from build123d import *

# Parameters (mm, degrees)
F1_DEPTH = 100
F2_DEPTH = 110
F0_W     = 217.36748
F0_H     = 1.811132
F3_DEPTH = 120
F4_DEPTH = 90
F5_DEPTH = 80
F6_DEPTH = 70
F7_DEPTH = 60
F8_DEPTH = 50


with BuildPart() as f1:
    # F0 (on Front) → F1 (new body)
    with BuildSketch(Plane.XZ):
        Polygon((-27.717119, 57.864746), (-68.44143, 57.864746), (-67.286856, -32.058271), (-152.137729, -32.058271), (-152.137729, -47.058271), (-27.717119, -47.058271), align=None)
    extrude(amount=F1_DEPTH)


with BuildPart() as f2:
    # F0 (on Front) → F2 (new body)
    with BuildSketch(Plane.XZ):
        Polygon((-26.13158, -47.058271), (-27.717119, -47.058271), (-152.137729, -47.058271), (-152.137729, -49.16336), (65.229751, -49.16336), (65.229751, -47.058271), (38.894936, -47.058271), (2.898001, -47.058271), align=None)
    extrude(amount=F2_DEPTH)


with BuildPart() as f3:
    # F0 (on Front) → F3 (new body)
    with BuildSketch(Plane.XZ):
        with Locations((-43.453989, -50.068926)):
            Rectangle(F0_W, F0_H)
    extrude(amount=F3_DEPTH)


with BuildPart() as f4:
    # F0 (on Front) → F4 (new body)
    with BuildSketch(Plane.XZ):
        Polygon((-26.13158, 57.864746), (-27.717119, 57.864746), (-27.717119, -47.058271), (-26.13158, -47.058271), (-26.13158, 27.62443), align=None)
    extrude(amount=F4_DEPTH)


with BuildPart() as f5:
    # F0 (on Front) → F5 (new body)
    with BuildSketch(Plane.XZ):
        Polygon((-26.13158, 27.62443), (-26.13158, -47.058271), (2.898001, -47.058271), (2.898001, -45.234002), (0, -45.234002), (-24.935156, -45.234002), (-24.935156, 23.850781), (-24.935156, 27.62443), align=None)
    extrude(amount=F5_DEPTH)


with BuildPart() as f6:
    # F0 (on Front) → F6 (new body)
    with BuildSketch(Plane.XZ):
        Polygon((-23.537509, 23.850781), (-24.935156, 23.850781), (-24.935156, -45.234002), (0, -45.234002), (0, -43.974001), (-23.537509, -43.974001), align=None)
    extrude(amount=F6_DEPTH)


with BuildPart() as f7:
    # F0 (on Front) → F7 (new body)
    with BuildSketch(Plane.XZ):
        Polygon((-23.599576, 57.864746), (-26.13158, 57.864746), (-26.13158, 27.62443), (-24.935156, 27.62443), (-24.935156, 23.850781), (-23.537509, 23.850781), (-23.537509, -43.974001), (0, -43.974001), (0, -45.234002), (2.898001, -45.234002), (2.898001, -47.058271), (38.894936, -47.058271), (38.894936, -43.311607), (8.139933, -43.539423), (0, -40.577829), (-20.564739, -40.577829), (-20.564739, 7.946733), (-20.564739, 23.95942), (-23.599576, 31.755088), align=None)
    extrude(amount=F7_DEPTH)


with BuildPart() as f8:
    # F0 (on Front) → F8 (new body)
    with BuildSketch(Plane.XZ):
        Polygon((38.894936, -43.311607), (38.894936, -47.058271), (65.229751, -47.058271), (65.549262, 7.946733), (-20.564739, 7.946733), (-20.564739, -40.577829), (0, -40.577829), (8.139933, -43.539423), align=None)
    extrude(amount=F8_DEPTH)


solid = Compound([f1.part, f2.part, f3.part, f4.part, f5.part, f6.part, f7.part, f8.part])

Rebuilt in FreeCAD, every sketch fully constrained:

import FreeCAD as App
import Part
import Sketcher
from FreeCAD import Vector
Q = App.Units.Quantity

doc = App.newDocument("Part")
body = doc.addObject("PartDesign::Body", "Body")

sketch1 = doc.addObject("Sketcher::SketchObject", "Sketch")
body.addObject(sketch1)
sketch1.AttachmentSupport = (doc.XZ_Plane, [""])
sketch1.MapMode = "FlatFace"
sketch1.addGeometry([
    Part.LineSegment(Vector(-28, 58, 0), Vector(-68, 58, 0)),
    Part.LineSegment(Vector(-68, 58, 0), Vector(-67, -32, 0)),
    Part.LineSegment(Vector(-67, -32, 0), Vector(-152, -32, 0)),
    Part.LineSegment(Vector(-152, -32, 0), Vector(-152, -47, 0)),
    Part.LineSegment(Vector(-152, -47, 0), Vector(-28, -47, 0)),
    Part.LineSegment(Vector(-28, -47, 0), Vector(-28, 58, 0)),
], False)
sketch1.addConstraint([
    Sketcher.Constraint("Coincident", 0, 2, 1, 1),
    Sketcher.Constraint("Coincident", 1, 2, 2, 1),
    Sketcher.Constraint("Coincident", 2, 2, 3, 1),
    Sketcher.Constraint("Coincident", 3, 2, 4, 1),
    Sketcher.Constraint("Coincident", 4, 2, 5, 1),
    Sketcher.Constraint("Coincident", 5, 2, 0, 1),
    Sketcher.Constraint("Horizontal", 0),
    Sketcher.Constraint("Horizontal", 2),
    Sketcher.Constraint("Vertical", 3),
    Sketcher.Constraint("Horizontal", 4),
    Sketcher.Constraint("Vertical", 5),
    Sketcher.Constraint("DistanceY", 3, 2, 3, 1, Q("15 mm")),
    Sketcher.Constraint("DistanceX", 0, 2, 0, 1, Q("40.724311 mm")),
    Sketcher.Constraint("DistanceX", 4, 1, 4, 2, Q("124.42061 mm")),
    Sketcher.Constraint("Distance", 1, Q("89.930429 mm")),
    Sketcher.Constraint("DistanceX", 2, 2, 2, 1, Q("84.850873 mm")),
    Sketcher.Constraint("DistanceX", 0, 2, -1, 1, Q("68.44143 mm")),
    Sketcher.Constraint("DistanceY", 1, 2, -1, 1, Q("32.058271 mm")),
])
pad1 = doc.addObject("PartDesign::Pad", "Pad")
body.addObject(pad1)
pad1.Profile = sketch1
pad1.Length = 100
body2 = doc.addObject("PartDesign::Body", "Body001")

sketch2 = doc.addObject("Sketcher::SketchObject", "Sketch001")
body2.addObject(sketch2)
sketch2.AttachmentSupport = (doc.getObject("XZ_Plane001"), [""])
sketch2.MapMode = "FlatFace"
sketch2.addGeometry([
    Part.LineSegment(Vector(-152.1, -47.1, 0), Vector(-152.1, -49.2, 0)),
    Part.LineSegment(Vector(-152.1, -49.2, 0), Vector(65.2, -49.2, 0)),
    Part.LineSegment(Vector(65.2, -49.2, 0), Vector(65.2, -47.1, 0)),
    Part.LineSegment(Vector(65.2, -47.1, 0), Vector(-152.1, -47.1, 0)),
], False)
sketch2.addConstraint([
    Sketcher.Constraint("Coincident", 0, 2, 1, 1),
    Sketcher.Constraint("Coincident", 1, 2, 2, 1),
    Sketcher.Constraint("Coincident", 2, 2, 3, 1),
    Sketcher.Constraint("Coincident", 3, 2, 0, 1),
    Sketcher.Constraint("Vertical", 0),
    Sketcher.Constraint("Horizontal", 1),
    Sketcher.Constraint("Vertical", 2),
    Sketcher.Constraint("Horizontal", 3),
    Sketcher.Constraint("DistanceX", 1, 1, 1, 2, Q("217.36748 mm")),
    Sketcher.Constraint("DistanceY", 0, 2, 0, 1, Q("2.105089 mm")),
    Sketcher.Constraint("DistanceX", 0, 2, -1, 1, Q("152.137729 mm")),
    Sketcher.Constraint("DistanceY", 0, 2, -1, 1, Q("49.16336 mm")),
])
pad2 = doc.addObject("PartDesign::Pad", "Pad001")
body2.addObject(pad2)
pad2.Profile = sketch2
pad2.Length = 110
body3 = doc.addObject("PartDesign::Body", "Body002")

sketch3 = doc.addObject("Sketcher::SketchObject", "Sketch002")
body3.addObject(sketch3)
sketch3.AttachmentSupport = (doc.getObject("XZ_Plane002"), [""])
sketch3.MapMode = "FlatFace"
sketch3.addGeometry([
    Part.LineSegment(Vector(-152.1, -49.2, 0), Vector(-152.1, -51, 0)),
    Part.LineSegment(Vector(-152.1, -51, 0), Vector(65.2, -51, 0)),
    Part.LineSegment(Vector(65.2, -51, 0), Vector(65.2, -49.2, 0)),
    Part.LineSegment(Vector(65.2, -49.2, 0), Vector(-152.1, -49.2, 0)),
], False)
sketch3.addConstraint([
    Sketcher.Constraint("Coincident", 0, 2, 1, 1),
    Sketcher.Constraint("Coincident", 1, 2, 2, 1),
    Sketcher.Constraint("Coincident", 2, 2, 3, 1),
    Sketcher.Constraint("Coincident", 3, 2, 0, 1),
    Sketcher.Constraint("Vertical", 0),
    Sketcher.Constraint("Horizontal", 1),
    Sketcher.Constraint("Vertical", 2),
    Sketcher.Constraint("Horizontal", 3),
    Sketcher.Constraint("DistanceX", 1, 1, 1, 2, Q("217.36748 mm")),
    Sketcher.Constraint("DistanceY", 0, 2, 0, 1, Q("1.811132 mm")),
    Sketcher.Constraint("DistanceX", 0, 2, -1, 1, Q("152.137729 mm")),
    Sketcher.Constraint("DistanceY", 0, 2, -1, 1, Q("50.974492 mm")),
])
pad3 = doc.addObject("PartDesign::Pad", "Pad002")
body3.addObject(pad3)
pad3.Profile = sketch3
pad3.Length = 120
body4 = doc.addObject("PartDesign::Body", "Body003")

sketch4 = doc.addObject("Sketcher::SketchObject", "Sketch003")
body4.addObject(sketch4)
sketch4.AttachmentSupport = (doc.getObject("XZ_Plane003"), [""])
sketch4.MapMode = "FlatFace"
sketch4.addGeometry([
    Part.LineSegment(Vector(-26.1, 57.9, 0), Vector(-27.7, 57.9, 0)),
    Part.LineSegment(Vector(-27.7, 57.9, 0), Vector(-27.7, -47.1, 0)),
    Part.LineSegment(Vector(-27.7, -47.1, 0), Vector(-26.1, -47.1, 0)),
    Part.LineSegment(Vector(-26.1, -47.1, 0), Vector(-26.1, 57.9, 0)),
], False)
sketch4.addConstraint([
    Sketcher.Constraint("Coincident", 0, 2, 1, 1),
    Sketcher.Constraint("Coincident", 1, 2, 2, 1),
    Sketcher.Constraint("Coincident", 2, 2, 3, 1),
    Sketcher.Constraint("Coincident", 3, 2, 0, 1),
    Sketcher.Constraint("Horizontal", 0),
    Sketcher.Constraint("Vertical", 1),
    Sketcher.Constraint("Horizontal", 2),
    Sketcher.Constraint("Vertical", 3),
    Sketcher.Constraint("DistanceX", 0, 2, 0, 1, Q("1.585539 mm")),
    Sketcher.Constraint("DistanceY", 1, 2, 1, 1, Q("104.923017 mm")),
    Sketcher.Constraint("DistanceX", 0, 2, -1, 1, Q("27.717119 mm")),
    Sketcher.Constraint("DistanceY", 1, 2, -1, 1, Q("47.058271 mm")),
])
pad4 = doc.addObject("PartDesign::Pad", "Pad003")
body4.addObject(pad4)
pad4.Profile = sketch4
pad4.Length = 90
body5 = doc.addObject("PartDesign::Body", "Body004")

sketch5 = doc.addObject("Sketcher::SketchObject", "Sketch004")
body5.addObject(sketch5)
sketch5.AttachmentSupport = (doc.getObject("XZ_Plane004"), [""])
sketch5.MapMode = "FlatFace"
sketch5.addGeometry([
    Part.LineSegment(Vector(-26.1, 27.6, 0), Vector(-26.1, -47.1, 0)),
    Part.LineSegment(Vector(-26.1, -47.1, 0), Vector(2.9, -47.1, 0)),
    Part.LineSegment(Vector(2.9, -47.1, 0), Vector(2.9, -45.2, 0)),
    Part.LineSegment(Vector(2.9, -45.2, 0), Vector(-24.9, -45.2, 0)),
    Part.LineSegment(Vector(-24.9, -45.2, 0), Vector(-24.9, 27.6, 0)),
    Part.LineSegment(Vector(-24.9, 27.6, 0), Vector(-26.1, 27.6, 0)),
], False)
sketch5.addConstraint([
    Sketcher.Constraint("Coincident", 0, 2, 1, 1),
    Sketcher.Constraint("Coincident", 1, 2, 2, 1),
    Sketcher.Constraint("Coincident", 2, 2, 3, 1),
    Sketcher.Constraint("Coincident", 3, 2, 4, 1),
    Sketcher.Constraint("Coincident", 4, 2, 5, 1),
    Sketcher.Constraint("Coincident", 5, 2, 0, 1),
    Sketcher.Constraint("Vertical", 0),
    Sketcher.Constraint("Horizontal", 1),
    Sketcher.Constraint("Vertical", 2),
    Sketcher.Constraint("Horizontal", 3),
    Sketcher.Constraint("Vertical", 4),
    Sketcher.Constraint("Horizontal", 5),
    Sketcher.Constraint("DistanceY", 0, 2, 0, 1, Q("74.682701 mm")),
    Sketcher.Constraint("DistanceX", -1, 1, 1, 2, Q("2.898001 mm")),
    Sketcher.Constraint("DistanceY", 2, 2, -1, 1, Q("45.234002 mm")),
    Sketcher.Constraint("DistanceX", 1, 1, 1, 2, Q("29.029581 mm")),
    Sketcher.Constraint("DistanceY", 2, 1, 2, 2, Q("1.824269 mm")),
    Sketcher.Constraint("DistanceX", 3, 2, 3, 1, Q("27.833157 mm")),
])
pad5 = doc.addObject("PartDesign::Pad", "Pad004")
body5.addObject(pad5)
pad5.Profile = sketch5
pad5.Length = 80
body6 = doc.addObject("PartDesign::Body", "Body005")

sketch6 = doc.addObject("Sketcher::SketchObject", "Sketch005")
body6.addObject(sketch6)
sketch6.AttachmentSupport = (doc.getObject("XZ_Plane005"), [""])
sketch6.MapMode = "FlatFace"
sketch6.addGeometry([
    Part.LineSegment(Vector(-23.5, 23.9, 0), Vector(-24.9, 23.9, 0)),
    Part.LineSegment(Vector(-24.9, 23.9, 0), Vector(-24.9, -45.2, 0)),
    Part.LineSegment(Vector(-24.9, -45.2, 0), Vector(0, -45.2, 0)),
    Part.LineSegment(Vector(0, -45.2, 0), Vector(0, -44, 0)),
    Part.LineSegment(Vector(0, -44, 0), Vector(-23.5, -44, 0)),
    Part.LineSegment(Vector(-23.5, -44, 0), Vector(-23.5, 23.9, 0)),
], False)
sketch6.addConstraint([
    Sketcher.Constraint("Coincident", 0, 2, 1, 1),
    Sketcher.Constraint("Coincident", 1, 2, 2, 1),
    Sketcher.Constraint("Coincident", 2, 2, 3, 1),
    Sketcher.Constraint("Coincident", 3, 2, 4, 1),
    Sketcher.Constraint("Coincident", 4, 2, 5, 1),
    Sketcher.Constraint("Coincident", 5, 2, 0, 1),
    Sketcher.Constraint("Horizontal", 0),
    Sketcher.Constraint("Vertical", 1),
    Sketcher.Constraint("Horizontal", 2),
    Sketcher.Constraint("Vertical", 3),
    Sketcher.Constraint("Horizontal", 4),
    Sketcher.Constraint("Vertical", 5),
    Sketcher.Constraint("PointOnObject", 2, 2, -2),
    Sketcher.Constraint("DistanceY", 3, 1, 3, 2, Q("1.260001 mm")),
    Sketcher.Constraint("DistanceY", 1, 2, -1, 1, Q("45.234002 mm")),
    Sketcher.Constraint("DistanceX", 4, 2, 4, 1, Q("23.537509 mm")),
    Sketcher.Constraint("DistanceY", 5, 1, 5, 2, Q("67.824782 mm")),
    Sketcher.Constraint("DistanceX", 0, 2, 0, 1, Q("1.397647 mm")),
])
pad6 = doc.addObject("PartDesign::Pad", "Pad005")
body6.addObject(pad6)
pad6.Profile = sketch6
pad6.Length = 70
body7 = doc.addObject("PartDesign::Body", "Body006")

sketch7 = doc.addObject("Sketcher::SketchObject", "Sketch006")
body7.addObject(sketch7)
sketch7.AttachmentSupport = (doc.getObject("XZ_Plane006"), [""])
sketch7.MapMode = "FlatFace"
sketch7.addGeometry([
    Part.LineSegment(Vector(-23.6, 57.9, 0), Vector(-26.1, 57.9, 0)),
    Part.LineSegment(Vector(-26.1, 57.9, 0), Vector(-26.1, 27.6, 0)),
    Part.LineSegment(Vector(-26.1, 27.6, 0), Vector(-24.9, 27.6, 0)),
    Part.LineSegment(Vector(-24.9, 27.6, 0), Vector(-24.9, 23.9, 0)),
    Part.LineSegment(Vector(-24.9, 23.9, 0), Vector(-23.5, 23.9, 0)),
    Part.LineSegment(Vector(-23.5, 23.9, 0), Vector(-23.5, -44, 0)),
    Part.LineSegment(Vector(-23.5, -44, 0), Vector(0, -44, 0)),
    Part.LineSegment(Vector(0, -44, 0), Vector(0, -45.2, 0)),
    Part.LineSegment(Vector(0, -45.2, 0), Vector(2.9, -45.2, 0)),
    Part.LineSegment(Vector(2.9, -45.2, 0), Vector(2.9, -47.1, 0)),
    Part.LineSegment(Vector(2.9, -47.1, 0), Vector(38.9, -47.1, 0)),
    Part.LineSegment(Vector(38.9, -47.1, 0), Vector(38.9, -43.3, 0)),
    Part.LineSegment(Vector(38.9, -43.3, 0), Vector(8.1, -43.5, 0)),
    Part.LineSegment(Vector(8.1, -43.5, 0), Vector(0, -40.6, 0)),
    Part.LineSegment(Vector(0, -40.6, 0), Vector(-20.6, -40.6, 0)),
    Part.LineSegment(Vector(-20.6, -40.6, 0), Vector(-20.6, 24, 0)),
    Part.LineSegment(Vector(-20.6, 24, 0), Vector(-23.6, 31.8, 0)),
    Part.LineSegment(Vector(-23.6, 31.8, 0), Vector(-23.6, 57.9, 0)),
], False)
sketch7.addConstraint([
    Sketcher.Constraint("Coincident", 0, 2, 1, 1),
    Sketcher.Constraint("Coincident", 1, 2, 2, 1),
    Sketcher.Constraint("Coincident", 2, 2, 3, 1),
    Sketcher.Constraint("Coincident", 3, 2, 4, 1),
    Sketcher.Constraint("Coincident", 4, 2, 5, 1),
    Sketcher.Constraint("Coincident", 5, 2, 6, 1),
    Sketcher.Constraint("Coincident", 6, 2, 7, 1),
    Sketcher.Constraint("Coincident", 7, 2, 8, 1),
    Sketcher.Constraint("Coincident", 8, 2, 9, 1),
    Sketcher.Constraint("Coincident", 9, 2, 10, 1),
    Sketcher.Constraint("Coincident", 10, 2, 11, 1),
    Sketcher.Constraint("Coincident", 11, 2, 12, 1),
    Sketcher.Constraint("Coincident", 12, 2, 13, 1),
    Sketcher.Constraint("Coincident", 13, 2, 14, 1),
    Sketcher.Constraint("Coincident", 14, 2, 15, 1),
    Sketcher.Constraint("Coincident", 15, 2, 16, 1),
    Sketcher.Constraint("Coincident", 16, 2, 17, 1),
    Sketcher.Constraint("Coincident", 17, 2, 0, 1),
    Sketcher.Constraint("Horizontal", 0),
    Sketcher.Constraint("Vertical", 1),
    Sketcher.Constraint("Horizontal", 2),
    Sketcher.Constraint("Vertical", 3),
    Sketcher.Constraint("Horizontal", 4),
    Sketcher.Constraint("Vertical", 5),
    Sketcher.Constraint("Horizontal", 6),
    Sketcher.Constraint("Vertical", 7),
    Sketcher.Constraint("Horizontal", 8),
    Sketcher.Constraint("Vertical", 9),
    Sketcher.Constraint("Horizontal", 10),
    Sketcher.Constraint("Vertical", 11),
    Sketcher.Constraint("Horizontal", 14),
    Sketcher.Constraint("Vertical", 15),
    Sketcher.Constraint("Vertical", 17),
    Sketcher.Constraint("PointOnObject", 6, 2, -2),
    Sketcher.Constraint("PointOnObject", 13, 2, -2),
    Sketcher.Constraint("DistanceY", 7, 2, 7, 1, Q("1.260001 mm")),
    Sketcher.Constraint("DistanceX", 8, 1, 8, 2, Q("2.898001 mm")),
    Sketcher.Constraint("DistanceY", 5, 2, -1, 1, Q("43.974001 mm")),
    Sketcher.Constraint("DistanceX", 6, 1, 6, 2, Q("23.537509 mm")),
    Sketcher.Constraint("DistanceX", 14, 2, 14, 1, Q("20.564739 mm")),
    Sketcher.Constraint("DistanceY", 3, 2, 3, 1, Q("3.773649 mm")),
    Sketcher.Constraint("DistanceY", 5, 2, 5, 1, Q("67.824782 mm")),
    Sketcher.Constraint("DistanceY", 9, 2, 9, 1, Q("1.824269 mm")),
    Sketcher.Constraint("DistanceY", 15, 1, 15, 2, Q("64.537249 mm")),
    Sketcher.Constraint("Distance", 13, Q("8.66196 mm")),
    Sketcher.Constraint("DistanceX", 0, 2, 0, 1, Q("2.532004 mm")),
    Sketcher.Constraint("DistanceX", 2, 1, 2, 2, Q("1.196424 mm")),
    Sketcher.Constraint("DistanceX", 4, 1, 4, 2, Q("1.397647 mm")),
    Sketcher.Constraint("DistanceX", 10, 1, 10, 2, Q("35.996935 mm")),
    Sketcher.Constraint("DistanceY", 1, 2, 1, 1, Q("30.240316 mm")),
    Sketcher.Constraint("DistanceY", 11, 1, 11, 2, Q("3.746664 mm")),
    Sketcher.Constraint("DistanceY", 17, 1, 17, 2, Q("26.109658 mm")),
    Sketcher.Constraint("DistanceY", 13, 2, -1, 1, Q("40.577829 mm")),
    Sketcher.Constraint("DistanceX", 8, 2, 12, 2, Q("5.241932 mm")),
])
pad7 = doc.addObject("PartDesign::Pad", "Pad006")
body7.addObject(pad7)
pad7.Profile = sketch7
pad7.Length = 60
body8 = doc.addObject("PartDesign::Body", "Body007")

sketch8 = doc.addObject("Sketcher::SketchObject", "Sketch007")
body8.addObject(sketch8)
sketch8.AttachmentSupport = (doc.getObject("XZ_Plane007"), [""])
sketch8.MapMode = "FlatFace"
sketch8.addGeometry([
    Part.LineSegment(Vector(38.9, -43.3, 0), Vector(38.9, -47.1, 0)),
    Part.LineSegment(Vector(38.9, -47.1, 0), Vector(65.2, -47.1, 0)),
    Part.LineSegment(Vector(65.2, -47.1, 0), Vector(65.5, 7.9, 0)),
    Part.LineSegment(Vector(65.5, 7.9, 0), Vector(-20.6, 7.9, 0)),
    Part.LineSegment(Vector(-20.6, 7.9, 0), Vector(-20.6, -40.6, 0)),
    Part.LineSegment(Vector(-20.6, -40.6, 0), Vector(0, -40.6, 0)),
    Part.LineSegment(Vector(0, -40.6, 0), Vector(8.1, -43.5, 0)),
    Part.LineSegment(Vector(8.1, -43.5, 0), Vector(38.9, -43.3, 0)),
], False)
sketch8.addConstraint([
    Sketcher.Constraint("Coincident", 0, 2, 1, 1),
    Sketcher.Constraint("Coincident", 1, 2, 2, 1),
    Sketcher.Constraint("Coincident", 2, 2, 3, 1),
    Sketcher.Constraint("Coincident", 3, 2, 4, 1),
    Sketcher.Constraint("Coincident", 4, 2, 5, 1),
    Sketcher.Constraint("Coincident", 5, 2, 6, 1),
    Sketcher.Constraint("Coincident", 6, 2, 7, 1),
    Sketcher.Constraint("Coincident", 7, 2, 0, 1),
    Sketcher.Constraint("Vertical", 0),
    Sketcher.Constraint("Horizontal", 1),
    Sketcher.Constraint("Horizontal", 3),
    Sketcher.Constraint("Vertical", 4),
    Sketcher.Constraint("Horizontal", 5),
    Sketcher.Constraint("PointOnObject", 5, 2, -2),
    Sketcher.Constraint("DistanceX", 3, 2, 3, 1, Q("86.114001 mm")),
    Sketcher.Constraint("DistanceX", 5, 1, 5, 2, Q("20.564739 mm")),
    Sketcher.Constraint("Distance", 2, Q("55.005932 mm")),
    Sketcher.Constraint("Distance", 6, Q("8.66196 mm")),
    Sketcher.Constraint("DistanceX", 1, 1, 1, 2, Q("26.334815 mm")),
    Sketcher.Constraint("DistanceY", 0, 2, 0, 1, Q("3.746664 mm")),
    Sketcher.Constraint("DistanceY", 4, 2, 4, 1, Q("48.524562 mm")),
    Sketcher.Constraint("DistanceY", 0, 2, -1, 1, Q("47.058271 mm")),
    Sketcher.Constraint("DistanceX", -1, 1, 1, 2, Q("65.229751 mm")),
    Sketcher.Constraint("DistanceX", 4, 2, 6, 2, Q("28.704672 mm")),
])
pad8 = doc.addObject("PartDesign::Pad", "Pad007")
body8.addObject(pad8)
pad8.Profile = sketch8
pad8.Length = 50

doc.recompute()
